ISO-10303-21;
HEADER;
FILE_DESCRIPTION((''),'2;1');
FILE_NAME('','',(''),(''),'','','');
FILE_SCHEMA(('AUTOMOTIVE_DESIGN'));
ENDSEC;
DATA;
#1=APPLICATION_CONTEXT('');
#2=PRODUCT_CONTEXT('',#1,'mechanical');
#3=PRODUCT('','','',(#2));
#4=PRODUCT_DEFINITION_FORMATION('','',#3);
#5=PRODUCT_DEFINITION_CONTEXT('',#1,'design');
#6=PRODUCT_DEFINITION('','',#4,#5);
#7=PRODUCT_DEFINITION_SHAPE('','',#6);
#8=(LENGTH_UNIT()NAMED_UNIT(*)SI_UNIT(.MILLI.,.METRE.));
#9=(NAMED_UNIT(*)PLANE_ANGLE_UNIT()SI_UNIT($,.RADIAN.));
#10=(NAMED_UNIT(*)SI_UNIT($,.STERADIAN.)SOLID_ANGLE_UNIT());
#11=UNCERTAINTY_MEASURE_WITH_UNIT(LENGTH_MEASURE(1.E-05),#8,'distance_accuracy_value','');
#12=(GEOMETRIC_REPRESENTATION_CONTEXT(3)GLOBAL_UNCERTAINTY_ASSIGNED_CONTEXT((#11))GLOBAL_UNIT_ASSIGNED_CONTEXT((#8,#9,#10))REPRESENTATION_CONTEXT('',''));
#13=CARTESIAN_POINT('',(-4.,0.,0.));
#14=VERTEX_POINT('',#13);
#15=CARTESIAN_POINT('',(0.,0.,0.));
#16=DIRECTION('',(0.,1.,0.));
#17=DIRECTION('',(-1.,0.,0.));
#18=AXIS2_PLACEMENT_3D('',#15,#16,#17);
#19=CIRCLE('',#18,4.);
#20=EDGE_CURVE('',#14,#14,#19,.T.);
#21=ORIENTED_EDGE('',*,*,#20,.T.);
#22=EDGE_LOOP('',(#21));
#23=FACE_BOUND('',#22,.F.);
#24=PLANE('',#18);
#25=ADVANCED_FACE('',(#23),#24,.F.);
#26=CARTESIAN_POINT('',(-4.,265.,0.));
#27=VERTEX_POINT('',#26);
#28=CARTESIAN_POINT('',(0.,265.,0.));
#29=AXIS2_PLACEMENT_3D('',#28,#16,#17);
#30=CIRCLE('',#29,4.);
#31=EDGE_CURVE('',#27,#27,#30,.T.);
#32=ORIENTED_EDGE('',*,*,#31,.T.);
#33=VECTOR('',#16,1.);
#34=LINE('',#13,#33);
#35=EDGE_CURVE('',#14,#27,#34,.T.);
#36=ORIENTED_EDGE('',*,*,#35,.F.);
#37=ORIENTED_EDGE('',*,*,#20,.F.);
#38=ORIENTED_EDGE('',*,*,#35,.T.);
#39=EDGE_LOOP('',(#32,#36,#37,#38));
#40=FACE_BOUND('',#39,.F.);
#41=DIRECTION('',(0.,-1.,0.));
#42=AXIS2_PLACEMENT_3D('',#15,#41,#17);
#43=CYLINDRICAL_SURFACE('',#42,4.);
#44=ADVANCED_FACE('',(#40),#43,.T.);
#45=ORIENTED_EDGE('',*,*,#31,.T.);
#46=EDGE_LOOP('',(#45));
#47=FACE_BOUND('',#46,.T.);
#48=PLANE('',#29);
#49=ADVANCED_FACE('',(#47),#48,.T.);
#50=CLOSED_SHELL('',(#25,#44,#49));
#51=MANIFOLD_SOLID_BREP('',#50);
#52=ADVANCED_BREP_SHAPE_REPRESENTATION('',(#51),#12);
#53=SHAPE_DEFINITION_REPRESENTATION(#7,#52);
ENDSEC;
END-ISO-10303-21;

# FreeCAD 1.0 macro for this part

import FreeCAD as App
import Part
import Sketcher

V = App.Vector
Q = App.Units.Quantity

doc = App.newDocument("Part")
params = doc.addObject("Spreadsheet::Sheet", "Params")
for row, (alias, value) in enumerate([
    ("sketch1_diameter", "8 mm"),
    ("pad1_length", "265 mm"),
], start=1):
    params.set(f"A{row}", alias)
    params.set(f"B{row}", "=" + value)
    params.setAlias(f"B{row}", alias)

body = doc.addObject("PartDesign::Body", "Body")

sketch1 = body.newObject("Sketcher::SketchObject", "Sketch")
sketch1.AttachmentSupport = (doc.getObject("XZ_Plane"), [""])
sketch1.MapMode = "FlatFace"
sketch1.addGeometry(Part.Circle(V(0, 0, 0), V(0, 0, 1), 4), False)
sketch1.addConstraint(Sketcher.Constraint("Coincident", 0, 3, -1, 1))
sketch1.addConstraint(Sketcher.Constraint("Diameter", 0, Q("8 mm")))
sketch1.setExpression("Constraints[1]", "Params.sketch1_diameter")
pad1 = body.newObject("PartDesign::Pad", "Pad")
pad1.Profile = sketch1
pad1.setExpression("Length", "Params.pad1_length")
pad1.Reversed = True

doc.recompute()
